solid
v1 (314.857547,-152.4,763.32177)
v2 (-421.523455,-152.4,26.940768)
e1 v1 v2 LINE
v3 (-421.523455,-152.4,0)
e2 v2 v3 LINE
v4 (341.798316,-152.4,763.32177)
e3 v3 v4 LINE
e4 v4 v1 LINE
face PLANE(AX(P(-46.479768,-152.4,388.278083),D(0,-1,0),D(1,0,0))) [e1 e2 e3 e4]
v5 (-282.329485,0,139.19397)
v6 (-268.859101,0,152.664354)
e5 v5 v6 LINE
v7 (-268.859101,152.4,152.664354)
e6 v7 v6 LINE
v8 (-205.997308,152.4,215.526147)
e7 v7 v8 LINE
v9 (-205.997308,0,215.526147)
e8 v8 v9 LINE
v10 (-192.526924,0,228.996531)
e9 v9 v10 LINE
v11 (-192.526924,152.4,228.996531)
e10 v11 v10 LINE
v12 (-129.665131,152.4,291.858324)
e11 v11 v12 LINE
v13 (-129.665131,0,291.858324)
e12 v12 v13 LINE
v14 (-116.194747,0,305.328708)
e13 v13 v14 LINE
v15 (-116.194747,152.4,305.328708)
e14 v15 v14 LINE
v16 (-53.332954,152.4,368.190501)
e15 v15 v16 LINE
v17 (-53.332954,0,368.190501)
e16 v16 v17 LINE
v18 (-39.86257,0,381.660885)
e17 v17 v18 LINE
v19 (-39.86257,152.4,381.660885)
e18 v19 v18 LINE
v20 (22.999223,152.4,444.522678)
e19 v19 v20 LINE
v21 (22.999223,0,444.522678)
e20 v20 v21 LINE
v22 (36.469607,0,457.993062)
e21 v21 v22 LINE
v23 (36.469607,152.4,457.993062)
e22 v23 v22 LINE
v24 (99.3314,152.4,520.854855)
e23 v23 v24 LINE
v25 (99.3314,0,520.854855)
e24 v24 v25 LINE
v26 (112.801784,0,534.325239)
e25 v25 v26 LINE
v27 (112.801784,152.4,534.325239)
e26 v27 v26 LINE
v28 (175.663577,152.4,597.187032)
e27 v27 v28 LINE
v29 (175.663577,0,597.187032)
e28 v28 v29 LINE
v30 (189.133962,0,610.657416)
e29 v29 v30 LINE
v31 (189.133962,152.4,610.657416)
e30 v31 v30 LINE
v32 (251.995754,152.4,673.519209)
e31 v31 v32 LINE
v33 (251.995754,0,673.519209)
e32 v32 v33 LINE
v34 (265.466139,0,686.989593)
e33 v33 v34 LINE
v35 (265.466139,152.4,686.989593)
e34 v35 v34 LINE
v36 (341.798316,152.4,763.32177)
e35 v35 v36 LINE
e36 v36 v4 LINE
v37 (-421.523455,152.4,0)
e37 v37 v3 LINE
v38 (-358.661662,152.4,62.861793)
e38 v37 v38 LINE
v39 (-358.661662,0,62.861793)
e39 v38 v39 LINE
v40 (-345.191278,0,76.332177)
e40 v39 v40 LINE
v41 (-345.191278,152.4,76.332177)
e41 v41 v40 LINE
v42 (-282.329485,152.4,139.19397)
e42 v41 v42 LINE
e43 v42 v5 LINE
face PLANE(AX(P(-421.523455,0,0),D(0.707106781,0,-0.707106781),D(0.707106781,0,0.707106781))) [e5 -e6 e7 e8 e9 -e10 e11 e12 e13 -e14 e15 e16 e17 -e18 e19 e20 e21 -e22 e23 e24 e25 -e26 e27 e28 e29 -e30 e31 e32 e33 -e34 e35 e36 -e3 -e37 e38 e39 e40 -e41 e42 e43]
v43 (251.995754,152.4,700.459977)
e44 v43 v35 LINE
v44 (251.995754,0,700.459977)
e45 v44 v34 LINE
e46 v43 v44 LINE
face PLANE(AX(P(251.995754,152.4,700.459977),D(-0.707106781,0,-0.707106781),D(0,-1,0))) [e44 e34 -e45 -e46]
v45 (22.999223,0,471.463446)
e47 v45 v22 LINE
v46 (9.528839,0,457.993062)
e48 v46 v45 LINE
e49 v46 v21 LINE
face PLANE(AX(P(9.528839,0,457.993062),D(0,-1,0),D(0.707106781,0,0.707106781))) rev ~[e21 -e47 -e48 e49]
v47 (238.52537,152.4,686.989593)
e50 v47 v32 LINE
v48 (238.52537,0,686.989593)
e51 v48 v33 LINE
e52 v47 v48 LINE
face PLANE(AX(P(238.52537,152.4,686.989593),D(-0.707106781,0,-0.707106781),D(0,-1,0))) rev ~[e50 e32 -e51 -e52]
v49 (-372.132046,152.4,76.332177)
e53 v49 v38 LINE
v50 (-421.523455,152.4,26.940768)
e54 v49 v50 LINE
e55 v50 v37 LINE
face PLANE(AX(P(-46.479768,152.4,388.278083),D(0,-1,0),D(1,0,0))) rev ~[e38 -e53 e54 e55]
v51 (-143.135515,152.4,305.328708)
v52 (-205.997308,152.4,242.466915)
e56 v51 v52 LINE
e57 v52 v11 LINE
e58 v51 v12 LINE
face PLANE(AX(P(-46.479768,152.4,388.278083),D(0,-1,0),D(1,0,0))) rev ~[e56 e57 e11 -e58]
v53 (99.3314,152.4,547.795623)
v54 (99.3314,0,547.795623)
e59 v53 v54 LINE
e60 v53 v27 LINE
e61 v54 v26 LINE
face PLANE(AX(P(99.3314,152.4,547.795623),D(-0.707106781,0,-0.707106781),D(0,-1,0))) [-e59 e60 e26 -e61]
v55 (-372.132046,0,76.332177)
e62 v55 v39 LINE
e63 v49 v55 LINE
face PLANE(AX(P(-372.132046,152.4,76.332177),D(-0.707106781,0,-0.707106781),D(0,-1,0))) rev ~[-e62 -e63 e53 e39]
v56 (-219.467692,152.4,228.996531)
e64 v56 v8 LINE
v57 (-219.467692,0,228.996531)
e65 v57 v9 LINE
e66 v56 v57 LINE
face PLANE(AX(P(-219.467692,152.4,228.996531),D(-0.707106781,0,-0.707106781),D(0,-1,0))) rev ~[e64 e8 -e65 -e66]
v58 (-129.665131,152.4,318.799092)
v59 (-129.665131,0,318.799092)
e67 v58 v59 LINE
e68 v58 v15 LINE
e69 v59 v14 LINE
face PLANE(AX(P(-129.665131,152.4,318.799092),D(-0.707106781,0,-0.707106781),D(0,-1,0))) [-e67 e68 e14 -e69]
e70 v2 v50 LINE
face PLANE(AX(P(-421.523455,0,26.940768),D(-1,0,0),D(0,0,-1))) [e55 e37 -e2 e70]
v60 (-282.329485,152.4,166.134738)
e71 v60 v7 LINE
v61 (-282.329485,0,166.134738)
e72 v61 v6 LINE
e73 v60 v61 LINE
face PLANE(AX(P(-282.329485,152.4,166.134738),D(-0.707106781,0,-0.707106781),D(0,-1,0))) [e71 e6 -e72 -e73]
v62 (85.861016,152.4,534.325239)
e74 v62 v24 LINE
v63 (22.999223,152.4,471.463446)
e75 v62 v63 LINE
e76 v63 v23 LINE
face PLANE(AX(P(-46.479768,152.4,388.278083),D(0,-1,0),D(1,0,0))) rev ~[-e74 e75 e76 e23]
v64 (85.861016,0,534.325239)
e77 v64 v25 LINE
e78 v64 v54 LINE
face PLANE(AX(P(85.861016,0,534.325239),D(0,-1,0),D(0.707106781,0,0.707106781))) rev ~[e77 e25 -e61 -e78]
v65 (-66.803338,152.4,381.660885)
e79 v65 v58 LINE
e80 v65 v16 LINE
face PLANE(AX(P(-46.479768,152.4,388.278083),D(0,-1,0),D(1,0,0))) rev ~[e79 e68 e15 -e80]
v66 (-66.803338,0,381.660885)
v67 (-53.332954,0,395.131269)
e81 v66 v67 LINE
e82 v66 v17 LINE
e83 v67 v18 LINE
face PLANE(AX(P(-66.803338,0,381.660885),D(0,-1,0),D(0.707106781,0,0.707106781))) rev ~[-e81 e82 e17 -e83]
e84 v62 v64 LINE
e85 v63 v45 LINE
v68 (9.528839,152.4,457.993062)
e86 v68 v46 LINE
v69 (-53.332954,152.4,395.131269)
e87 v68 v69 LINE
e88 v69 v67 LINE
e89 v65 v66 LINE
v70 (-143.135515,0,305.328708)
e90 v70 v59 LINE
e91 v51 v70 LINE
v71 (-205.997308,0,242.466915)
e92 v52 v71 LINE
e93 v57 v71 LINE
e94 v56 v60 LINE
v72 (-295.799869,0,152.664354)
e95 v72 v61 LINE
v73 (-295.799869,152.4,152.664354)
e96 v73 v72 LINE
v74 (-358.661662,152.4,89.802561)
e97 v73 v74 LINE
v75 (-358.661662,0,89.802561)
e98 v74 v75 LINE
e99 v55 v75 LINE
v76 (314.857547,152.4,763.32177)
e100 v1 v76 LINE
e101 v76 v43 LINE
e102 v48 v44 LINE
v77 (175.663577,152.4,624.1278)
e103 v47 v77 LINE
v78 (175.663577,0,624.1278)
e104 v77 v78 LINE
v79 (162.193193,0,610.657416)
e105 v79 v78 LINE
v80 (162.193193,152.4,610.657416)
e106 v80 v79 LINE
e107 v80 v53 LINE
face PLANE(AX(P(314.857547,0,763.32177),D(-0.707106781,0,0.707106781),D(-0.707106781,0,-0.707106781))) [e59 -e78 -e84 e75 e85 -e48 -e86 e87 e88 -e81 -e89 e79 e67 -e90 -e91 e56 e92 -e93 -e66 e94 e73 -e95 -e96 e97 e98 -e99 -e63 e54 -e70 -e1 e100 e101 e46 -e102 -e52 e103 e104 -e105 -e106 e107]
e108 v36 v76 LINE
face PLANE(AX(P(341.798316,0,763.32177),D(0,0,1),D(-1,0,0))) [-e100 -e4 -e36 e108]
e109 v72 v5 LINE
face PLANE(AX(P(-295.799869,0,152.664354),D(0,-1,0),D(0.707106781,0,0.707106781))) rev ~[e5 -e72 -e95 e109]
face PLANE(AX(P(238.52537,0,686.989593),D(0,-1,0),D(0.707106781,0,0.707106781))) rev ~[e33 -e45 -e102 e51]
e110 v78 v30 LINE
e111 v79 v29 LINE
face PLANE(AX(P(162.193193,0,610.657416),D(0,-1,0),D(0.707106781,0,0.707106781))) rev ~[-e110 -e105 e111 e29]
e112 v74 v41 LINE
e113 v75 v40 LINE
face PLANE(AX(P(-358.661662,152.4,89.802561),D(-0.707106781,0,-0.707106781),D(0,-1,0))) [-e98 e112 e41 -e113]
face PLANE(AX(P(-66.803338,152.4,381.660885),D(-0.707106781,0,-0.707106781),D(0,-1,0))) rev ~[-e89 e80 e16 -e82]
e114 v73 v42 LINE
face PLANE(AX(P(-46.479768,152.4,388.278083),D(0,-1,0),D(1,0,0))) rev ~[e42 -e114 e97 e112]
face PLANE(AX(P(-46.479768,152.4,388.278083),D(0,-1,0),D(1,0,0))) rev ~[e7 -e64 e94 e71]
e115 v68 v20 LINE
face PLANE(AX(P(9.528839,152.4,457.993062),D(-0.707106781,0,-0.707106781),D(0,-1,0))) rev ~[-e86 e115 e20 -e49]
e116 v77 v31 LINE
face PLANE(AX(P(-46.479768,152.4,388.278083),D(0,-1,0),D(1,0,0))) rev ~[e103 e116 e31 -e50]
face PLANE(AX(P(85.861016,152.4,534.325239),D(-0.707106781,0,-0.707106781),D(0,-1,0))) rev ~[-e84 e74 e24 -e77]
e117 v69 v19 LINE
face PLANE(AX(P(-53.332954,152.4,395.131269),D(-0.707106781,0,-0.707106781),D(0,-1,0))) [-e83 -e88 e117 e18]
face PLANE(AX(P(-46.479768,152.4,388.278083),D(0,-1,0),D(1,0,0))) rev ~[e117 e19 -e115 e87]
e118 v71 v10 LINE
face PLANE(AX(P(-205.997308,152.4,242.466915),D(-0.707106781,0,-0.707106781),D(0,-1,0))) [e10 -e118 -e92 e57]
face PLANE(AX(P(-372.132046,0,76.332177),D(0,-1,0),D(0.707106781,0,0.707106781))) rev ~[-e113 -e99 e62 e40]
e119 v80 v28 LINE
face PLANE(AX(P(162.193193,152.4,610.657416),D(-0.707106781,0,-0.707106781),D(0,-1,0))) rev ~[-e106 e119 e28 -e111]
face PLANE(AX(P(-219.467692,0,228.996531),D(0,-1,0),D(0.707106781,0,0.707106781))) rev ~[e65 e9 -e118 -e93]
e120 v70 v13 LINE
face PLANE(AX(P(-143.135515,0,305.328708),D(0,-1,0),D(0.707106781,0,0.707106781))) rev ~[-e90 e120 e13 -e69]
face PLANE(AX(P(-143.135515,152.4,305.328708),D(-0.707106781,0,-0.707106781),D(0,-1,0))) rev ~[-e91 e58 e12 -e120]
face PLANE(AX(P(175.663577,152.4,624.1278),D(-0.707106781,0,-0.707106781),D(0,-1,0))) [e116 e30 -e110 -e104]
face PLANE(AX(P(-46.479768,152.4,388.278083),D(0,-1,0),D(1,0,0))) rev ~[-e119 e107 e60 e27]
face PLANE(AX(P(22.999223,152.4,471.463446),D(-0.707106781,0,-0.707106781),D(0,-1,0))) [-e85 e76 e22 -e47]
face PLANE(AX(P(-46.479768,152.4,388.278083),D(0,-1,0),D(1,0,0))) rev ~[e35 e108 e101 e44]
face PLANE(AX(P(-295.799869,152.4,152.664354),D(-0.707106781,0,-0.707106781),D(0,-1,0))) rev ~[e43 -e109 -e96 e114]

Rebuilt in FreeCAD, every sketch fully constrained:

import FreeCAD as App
import Part
import Sketcher
from FreeCAD import Vector
Q = App.Units.Quantity

doc = App.newDocument("Part")
body = doc.addObject("PartDesign::Body", "Body")

sketch1 = body.newObject("Sketcher::SketchObject", "Sketch")
sketch1.AttachmentSupport = (doc.getObject("XZ_Plane"), [""])
sketch1.MapMode = "FlatFace"
sketch1.addGeometry([
    Part.LineSegment(Vector(-422, 27, 0), Vector(-422, 0, 0)),
    Part.LineSegment(Vector(-422, 0, 0), Vector(342, 763, 0)),
    Part.LineSegment(Vector(342, 763, 0), Vector(315, 763, 0)),
    Part.LineSegment(Vector(315, 763, 0), Vector(-422, 27, 0)),
], False)
sketch1.addConstraint([
    Sketcher.Constraint("Coincident", 0, 2, 1, 1),
    Sketcher.Constraint("Coincident", 1, 2, 2, 1),
    Sketcher.Constraint("Coincident", 2, 2, 3, 1),
    Sketcher.Constraint("Coincident", 3, 2, 0, 1),
    Sketcher.Constraint("Vertical", 0),
    Sketcher.Constraint("Horizontal", 2),
    Sketcher.Constraint("PointOnObject", 0, 2, -1),
    Sketcher.Constraint("Parallel", 1, 3),
    Sketcher.Constraint("Equal", 2, 0),
    Sketcher.Constraint("Distance", 3, Q("41 in")),
    Sketcher.Constraint("Distance", 1, Q("42.5 in")),
    Sketcher.Constraint("DistanceX", 0, 2, -1, 1, 421.523455),
])
pad1 = body.newObject("PartDesign::Pad", "Pad")
pad1.Profile = sketch1
pad1.Length = Q("12 in")
pad1.Midplane = True

sketch2 = body.newObject("Sketcher::SketchObject", "Sketch001")
sketch2.Placement = App.Placement(Vector(-224.232112, 0, 224.232112), App.Rotation(Vector(0, -1, 0), Vector(0.707106781, 0, 0.707106781), Vector(-0.707106781, 0, 0.707106781), "ZXY"))
sketch2.addGeometry([
    Part.LineSegment(Vector(-152, -190, 0), Vector(-152, -209, 0)),
    Part.LineSegment(Vector(-152, -209, 0), Vector(0, -209, 0)),
    Part.LineSegment(Vector(0, -209, 0), Vector(0, -190, 0)),
    Part.LineSegment(Vector(0, -190, 0), Vector(-152, -190, 0)),
    Part.LineSegment(Vector(-152, -82, 0), Vector(-152, -101, 0)),
    Part.LineSegment(Vector(-152, -101, 0), Vector(0, -101, 0)),
    Part.LineSegment(Vector(0, -101, 0), Vector(0, -82, 0)),
    Part.LineSegment(Vector(0, -82, 0), Vector(-152, -82, 0)),
    Part.LineSegment(Vector(-152, 26, 0), Vector(-152, 7, 0)),
    Part.LineSegment(Vector(-152, 7, 0), Vector(0, 7, 0)),
    Part.LineSegment(Vector(0, 7, 0), Vector(0, 26, 0)),
    Part.LineSegment(Vector(0, 26, 0), Vector(-152, 26, 0)),
    Part.LineSegment(Vector(-152, 134, 0), Vector(-152, 115, 0)),
    Part.LineSegment(Vector(-152, 115, 0), Vector(0, 115, 0)),
    Part.LineSegment(Vector(0, 115, 0), Vector(0, 134, 0)),
    Part.LineSegment(Vector(0, 134, 0), Vector(-152, 134, 0)),
    Part.LineSegment(Vector(-152, 242, 0), Vector(-152, 223, 0)),
    Part.LineSegment(Vector(-152, 223, 0), Vector(0, 223, 0)),
    Part.LineSegment(Vector(0, 223, 0), Vector(0, 242, 0)),
    Part.LineSegment(Vector(0, 242, 0), Vector(-152, 242, 0)),
    Part.LineSegment(Vector(-152, 350, 0), Vector(-152, 331, 0)),
    Part.LineSegment(Vector(-152, 331, 0), Vector(0, 331, 0)),
    Part.LineSegment(Vector(0, 331, 0), Vector(0, 350, 0)),
    Part.LineSegment(Vector(0, 350, 0), Vector(-152, 350, 0)),
    Part.LineSegment(Vector(-152, 458, 0), Vector(-152, 439, 0)),
    Part.LineSegment(Vector(-152, 439, 0), Vector(0, 439, 0)),
    Part.LineSegment(Vector(0, 439, 0), Vector(0, 458, 0)),
    Part.LineSegment(Vector(0, 458, 0), Vector(-152, 458, 0)),
    Part.LineSegment(Vector(-152, 566, 0), Vector(-152, 546, 0)),
    Part.LineSegment(Vector(-152, 546, 0), Vector(0, 546, 0)),
    Part.LineSegment(Vector(0, 546, 0), Vector(0, 566, 0)),
    Part.LineSegment(Vector(0, 566, 0), Vector(-152, 566, 0)),
    Part.LineSegment(Vector(-152, 673, 0), Vector(-152, 654, 0)),
    Part.LineSegment(Vector(-152, 654, 0), Vector(0, 654, 0)),
    Part.LineSegment(Vector(0, 654, 0), Vector(0, 673, 0)),
    Part.LineSegment(Vector(0, 673, 0), Vector(-152, 673, 0)),
], False)
sketch2.addConstraint([
    Sketcher.Constraint("Coincident", 0, 2, 1, 1),
    Sketcher.Constraint("Coincident", 1, 2, 2, 1),
    Sketcher.Constraint("Coincident", 2, 2, 3, 1),
    Sketcher.Constraint("Coincident", 3, 2, 0, 1),
    Sketcher.Constraint("Coincident", 4, 2, 5, 1),
    Sketcher.Constraint("Coincident", 5, 2, 6, 1),
    Sketcher.Constraint("Coincident", 6, 2, 7, 1),
    Sketcher.Constraint("Coincident", 7, 2, 4, 1),
    Sketcher.Constraint("Coincident", 8, 2, 9, 1),
    Sketcher.Constraint("Coincident", 9, 2, 10, 1),
    Sketcher.Constraint("Coincident", 10, 2, 11, 1),
    Sketcher.Constraint("Coincident", 11, 2, 8, 1),
    Sketcher.Constraint("Coincident", 12, 2, 13, 1),
    Sketcher.Constraint("Coincident", 13, 2, 14, 1),
    Sketcher.Constraint("Coincident", 14, 2, 15, 1),
    Sketcher.Constraint("Coincident", 15, 2, 12, 1),
    Sketcher.Constraint("Coincident", 16, 2, 17, 1),
    Sketcher.Constraint("Coincident", 17, 2, 18, 1),
    Sketcher.Constraint("Coincident", 18, 2, 19, 1),
    Sketcher.Constraint("Coincident", 19, 2, 16, 1),
    Sketcher.Constraint("Coincident", 20, 2, 21, 1),
    Sketcher.Constraint("Coincident", 21, 2, 22, 1),
    Sketcher.Constraint("Coincident", 22, 2, 23, 1),
    Sketcher.Constraint("Coincident", 23, 2, 20, 1),
    Sketcher.Constraint("Coincident", 24, 2, 25, 1),
    Sketcher.Constraint("Coincident", 25, 2, 26, 1),
    Sketcher.Constraint("Coincident", 26, 2, 27, 1),
    Sketcher.Constraint("Coincident", 27, 2, 24, 1),
    Sketcher.Constraint("Coincident", 28, 2, 29, 1),
    Sketcher.Constraint("Coincident", 29, 2, 30, 1),
    Sketcher.Constraint("Coincident", 30, 2, 31, 1),
    Sketcher.Constraint("Coincident", 31, 2, 28, 1),
    Sketcher.Constraint("Coincident", 32, 2, 33, 1),
    Sketcher.Constraint("Coincident", 33, 2, 34, 1),
    Sketcher.Constraint("Coincident", 34, 2, 35, 1),
    Sketcher.Constraint("Coincident", 35, 2, 32, 1),
    Sketcher.Constraint("Vertical", 0),
    Sketcher.Constraint("Horizontal", 1),
    Sketcher.Constraint("Vertical", 2),
    Sketcher.Constraint("Horizontal", 3),
    Sketcher.Constraint("Vertical", 4),
    Sketcher.Constraint("Horizontal", 5),
    Sketcher.Constraint("Vertical", 6),
    Sketcher.Constraint("Horizontal", 7),
    Sketcher.Constraint("Vertical", 8),
    Sketcher.Constraint("Horizontal", 9),
    Sketcher.Constraint("Vertical", 10),
    Sketcher.Constraint("Horizontal", 11),
    Sketcher.Constraint("Vertical", 12),
    Sketcher.Constraint("Horizontal", 13),
    Sketcher.Constraint("Vertical", 14),
    Sketcher.Constraint("Horizontal", 15),
    Sketcher.Constraint("Vertical", 16),
    Sketcher.Constraint("Horizontal", 17),
    Sketcher.Constraint("Vertical", 18),
    Sketcher.Constraint("Horizontal", 19),
    Sketcher.Constraint("Vertical", 20),
    Sketcher.Constraint("Horizontal", 21),
    Sketcher.Constraint("Vertical", 22),
    Sketcher.Constraint("Horizontal", 23),
    Sketcher.Constraint("Vertical", 24),
    Sketcher.Constraint("Horizontal", 25),
    Sketcher.Constraint("Vertical", 26),
    Sketcher.Constraint("Horizontal", 27),
    Sketcher.Constraint("Vertical", 28),
    Sketcher.Constraint("Horizontal", 29),
    Sketcher.Constraint("Vertical", 30),
    Sketcher.Constraint("Horizontal", 31),
    Sketcher.Constraint("Vertical", 32),
    Sketcher.Constraint("Horizontal", 33),
    Sketcher.Constraint("Vertical", 34),
    Sketcher.Constraint("Horizontal", 35),
    Sketcher.Constraint("PointOnObject", 1, 2, -2),
    Sketcher.Constraint("PointOnObject", 5, 2, -2),
    Sketcher.Constraint("PointOnObject", 9, 2, -2),
    Sketcher.Constraint("PointOnObject", 13, 2, -2),
    Sketcher.Constraint("PointOnObject", 17, 2, -2),
    Sketcher.Constraint("PointOnObject", 21, 2, -2),
    Sketcher.Constraint("PointOnObject", 25, 2, -2),
    Sketcher.Constraint("PointOnObject", 29, 2, -2),
    Sketcher.Constraint("PointOnObject", 33, 2, -2),
    Sketcher.Constraint("Vertical", 3, 2, 4, 2),
    Sketcher.Constraint("Vertical", 7, 2, 8, 2),
    Sketcher.Constraint("Vertical", 11, 2, 12, 2),
    Sketcher.Constraint("Vertical", 15, 2, 16, 2),
    Sketcher.Constraint("Vertical", 19, 2, 20, 2),
    Sketcher.Constraint("Vertical", 23, 2, 24, 2),
    Sketcher.Constraint("Vertical", 27, 2, 28, 2),
    Sketcher.Constraint("Vertical", 31, 2, 32, 2),
    Sketcher.Constraint("Equal", 2, 4),
    Sketcher.Constraint("Equal", 6, 8),
    Sketcher.Constraint("Equal", 10, 12),
    Sketcher.Constraint("Equal", 14, 16),
    Sketcher.Constraint("Equal", 18, 20),
    Sketcher.Constraint("Equal", 22, 24),
    Sketcher.Constraint("Equal", 26, 28),
    Sketcher.Constraint("Equal", 30, 32),
    Sketcher.Constraint("DistanceX", 1, 1, 1, 2, Q("6 in")),
    Sketcher.Constraint("DistanceY", 1, 2, 6, 2, Q("5 in")),
    Sketcher.Constraint("DistanceY", 5, 2, 10, 2, Q("5 in")),
    Sketcher.Constraint("DistanceY", 9, 2, 14, 2, Q("5 in")),
    Sketcher.Constraint("DistanceY", 13, 2, 18, 2, Q("5 in")),
    Sketcher.Constraint("DistanceY", 17, 2, 22, 2, Q("5 in")),
    Sketcher.Constraint("DistanceY", 21, 2, 26, 2, Q("5 in")),
    Sketcher.Constraint("DistanceY", 25, 2, 30, 2, Q("5 in")),
    Sketcher.Constraint("DistanceY", 29, 2, 34, 2, Q("5 in")),
    Sketcher.Constraint("DistanceY", 0, 2, 0, 1, Q("0.75 in")),
    Sketcher.Constraint("DistanceY", 0, 2, -1, 1, 209.162093),
])
pocket1 = body.newObject("PartDesign::Pocket", "Pocket")
pocket1.Profile = sketch2
pocket1.Length = Q("0.75 in")

doc.recompute()
